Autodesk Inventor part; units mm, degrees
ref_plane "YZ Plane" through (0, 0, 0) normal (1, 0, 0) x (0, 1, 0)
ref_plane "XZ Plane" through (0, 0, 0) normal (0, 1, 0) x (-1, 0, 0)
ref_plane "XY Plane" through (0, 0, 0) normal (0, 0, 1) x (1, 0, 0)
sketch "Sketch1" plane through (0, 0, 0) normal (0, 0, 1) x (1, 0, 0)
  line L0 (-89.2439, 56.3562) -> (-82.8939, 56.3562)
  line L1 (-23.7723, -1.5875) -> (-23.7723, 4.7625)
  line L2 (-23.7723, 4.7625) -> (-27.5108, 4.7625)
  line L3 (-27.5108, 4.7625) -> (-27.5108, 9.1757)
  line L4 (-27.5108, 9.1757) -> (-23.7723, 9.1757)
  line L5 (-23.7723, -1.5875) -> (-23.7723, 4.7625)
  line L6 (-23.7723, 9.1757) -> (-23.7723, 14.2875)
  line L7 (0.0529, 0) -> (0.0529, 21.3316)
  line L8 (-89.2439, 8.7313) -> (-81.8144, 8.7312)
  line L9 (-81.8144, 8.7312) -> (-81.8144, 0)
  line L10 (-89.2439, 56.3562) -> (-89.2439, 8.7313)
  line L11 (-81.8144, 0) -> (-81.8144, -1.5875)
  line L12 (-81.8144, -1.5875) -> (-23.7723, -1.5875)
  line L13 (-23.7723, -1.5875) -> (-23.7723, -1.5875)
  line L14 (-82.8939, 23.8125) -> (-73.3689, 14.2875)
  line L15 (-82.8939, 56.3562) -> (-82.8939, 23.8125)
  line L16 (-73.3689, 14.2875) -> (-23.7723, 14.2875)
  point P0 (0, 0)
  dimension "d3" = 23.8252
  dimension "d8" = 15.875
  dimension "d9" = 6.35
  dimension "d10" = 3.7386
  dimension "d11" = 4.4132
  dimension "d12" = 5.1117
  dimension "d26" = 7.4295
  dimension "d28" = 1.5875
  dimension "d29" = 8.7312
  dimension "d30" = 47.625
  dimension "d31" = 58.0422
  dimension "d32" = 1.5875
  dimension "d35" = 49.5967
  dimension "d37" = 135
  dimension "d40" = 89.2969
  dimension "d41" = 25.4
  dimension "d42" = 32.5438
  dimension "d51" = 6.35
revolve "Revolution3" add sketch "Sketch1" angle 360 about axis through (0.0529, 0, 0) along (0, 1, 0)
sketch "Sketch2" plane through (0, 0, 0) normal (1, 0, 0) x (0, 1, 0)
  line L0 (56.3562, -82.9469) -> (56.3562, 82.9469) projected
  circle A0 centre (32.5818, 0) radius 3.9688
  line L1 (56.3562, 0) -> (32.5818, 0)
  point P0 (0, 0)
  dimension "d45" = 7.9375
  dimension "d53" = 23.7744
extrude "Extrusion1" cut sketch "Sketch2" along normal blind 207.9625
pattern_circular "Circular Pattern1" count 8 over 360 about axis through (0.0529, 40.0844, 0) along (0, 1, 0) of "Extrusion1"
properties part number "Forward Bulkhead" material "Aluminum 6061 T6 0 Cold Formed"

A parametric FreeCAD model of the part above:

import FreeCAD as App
import Part
import Sketcher

V = App.Vector
Q = App.Units.Quantity


def add_polygon(sketch, points):
    """Adds a closed chain of lines whose ends are joined by coincident constraints."""
    first, n = sketch.GeometryCount, len(points)
    for a, b in zip(points, points[1:] + points[:1]):
        sketch.addGeometry(Part.LineSegment(App.Vector(*a, 0), App.Vector(*b, 0)), False)
    for i in range(n):
        sketch.addConstraint(Sketcher.Constraint("Coincident", first + i, 2, first + (i + 1) % n, 1))

doc = App.newDocument("Part")
body = doc.addObject("PartDesign::Body", "Body")

# Sketch on XY plane
sketch1 = body.newObject("Sketcher::SketchObject", "Sketch")
sketch1.AttachmentSupport = (doc.getObject("XY_Plane"), [""])
sketch1.MapMode = "FlatFace"
add_polygon(sketch1, [(-82.8939, 56.3562), (-89.2439, 56.3562), (-89.2439, 8.7313), (-81.8144, 8.7312), (-81.8144, -1.5875), (-23.7723, -1.5875), (-23.7723, 4.7625), (-27.5108, 4.7625), (-27.5108, 9.1757), (-23.7723, 9.1757), (-23.7723, 14.2875), (-73.3689, 14.2875), (-82.8939, 23.8125)])  # lines 0-12
sketch1.addGeometry(Part.LineSegment(V(0.0529, -1.5875, 0), V(0.0529, 56.3562, 0)), True)  # axis
sketch1.addConstraint([
    Sketcher.Constraint("Horizontal", 0),
    Sketcher.Constraint("Vertical", 1),
    Sketcher.Constraint("Horizontal", 2),
    Sketcher.Constraint("Vertical", 3),
    Sketcher.Constraint("Horizontal", 4),
    Sketcher.Constraint("Vertical", 5),
    Sketcher.Constraint("Horizontal", 6),
    Sketcher.Constraint("Vertical", 7),
    Sketcher.Constraint("Horizontal", 8),
    Sketcher.Constraint("Vertical", 9),
    Sketcher.Constraint("Horizontal", 10),
    Sketcher.Constraint("Vertical", 12),
    Sketcher.Constraint("Vertical", 13),
    Sketcher.Constraint("Horizontal", 4, 2, 13, 1),
    Sketcher.Constraint("Horizontal", 12, 2, 13, 2),
    Sketcher.Constraint("Vertical", 5, 2, 8, 2),
    Sketcher.Constraint("Equal", 0, 5),
    Sketcher.Constraint("Angle", 11, Q("135 deg")),
    Sketcher.Constraint("DistanceY", 3, 2, 11, 2, Q("1 in")),
    Sketcher.Constraint("DistanceX", 0, 2, 0, 1, Q("0.25 in")),
    Sketcher.Constraint("DistanceY", 1, 2, 1, 1, Q("1.875 in")),
    Sketcher.Constraint("DistanceY", 12, 1, 12, 2, Q("1.281248 in")),
    Sketcher.Constraint("DistanceX", 2, 1, 2, 2, Q("0.2925 in")),
    Sketcher.Constraint("DistanceY", -1, 1, 1, 2, Q("0.343752 in")),
    Sketcher.Constraint("DistanceY", 4, 2, 9, 2, Q("0.625 in")),
    Sketcher.Constraint("DistanceX", 4, 2, 13, 1, Q("0.938 in")),
    Sketcher.Constraint("DistanceX", 4, 1, 4, 2, 58.042),
    Sketcher.Constraint("DistanceX", 6, 2, 6, 1, 3.7385),
    Sketcher.Constraint("DistanceY", 7, 1, 7, 2, 4.4132),
    Sketcher.Constraint("DistanceX", 6, 2, -1, 1, Q("1.0831 in")),
])
revolution = body.newObject("PartDesign::Revolution", "Revolution")
revolution.Profile = sketch1
revolution.ReferenceAxis = (sketch1, ["Axis0"])
revolution.Angle = 360

# Sketch on YZ plane
sketch2 = body.newObject("Sketcher::SketchObject", "Sketch001")
sketch2.AttachmentSupport = (doc.getObject("YZ_Plane"), [""])
sketch2.MapMode = "FlatFace"
sketch2.addGeometry(Part.Circle(V(32.5818, 0, 0), V(0, 0, 1), 3.9688), False)
sketch2.addConstraint([
    Sketcher.Constraint("PointOnObject", 0, 3, -1),
    Sketcher.Constraint("Diameter", 0, Q("0.3125 in")),
    Sketcher.Constraint("DistanceX", -1, 1, 0, 3, 32.5818),
])
pocket1 = body.newObject("PartDesign::Pocket", "Pocket")
pocket1.Profile = sketch2
pocket1.Length = Q("8.1875 in")
pocket1.Reversed = True
doc.recompute()

datumline = body.newObject("PartDesign::Line", "DatumLine")
datumline.Placement = App.Placement(V(0.0529, 0, 0), App.Rotation(V(0, 0, 1), V(0, 1, 0)))
polarpattern = body.newObject("PartDesign::PolarPattern", "PolarPattern")
polarpattern.Originals = [pocket1]
polarpattern.Axis = (datumline, [""])
polarpattern.Angle = 360
polarpattern.Occurrences = 8
body.Tip = polarpattern

doc.recompute()
